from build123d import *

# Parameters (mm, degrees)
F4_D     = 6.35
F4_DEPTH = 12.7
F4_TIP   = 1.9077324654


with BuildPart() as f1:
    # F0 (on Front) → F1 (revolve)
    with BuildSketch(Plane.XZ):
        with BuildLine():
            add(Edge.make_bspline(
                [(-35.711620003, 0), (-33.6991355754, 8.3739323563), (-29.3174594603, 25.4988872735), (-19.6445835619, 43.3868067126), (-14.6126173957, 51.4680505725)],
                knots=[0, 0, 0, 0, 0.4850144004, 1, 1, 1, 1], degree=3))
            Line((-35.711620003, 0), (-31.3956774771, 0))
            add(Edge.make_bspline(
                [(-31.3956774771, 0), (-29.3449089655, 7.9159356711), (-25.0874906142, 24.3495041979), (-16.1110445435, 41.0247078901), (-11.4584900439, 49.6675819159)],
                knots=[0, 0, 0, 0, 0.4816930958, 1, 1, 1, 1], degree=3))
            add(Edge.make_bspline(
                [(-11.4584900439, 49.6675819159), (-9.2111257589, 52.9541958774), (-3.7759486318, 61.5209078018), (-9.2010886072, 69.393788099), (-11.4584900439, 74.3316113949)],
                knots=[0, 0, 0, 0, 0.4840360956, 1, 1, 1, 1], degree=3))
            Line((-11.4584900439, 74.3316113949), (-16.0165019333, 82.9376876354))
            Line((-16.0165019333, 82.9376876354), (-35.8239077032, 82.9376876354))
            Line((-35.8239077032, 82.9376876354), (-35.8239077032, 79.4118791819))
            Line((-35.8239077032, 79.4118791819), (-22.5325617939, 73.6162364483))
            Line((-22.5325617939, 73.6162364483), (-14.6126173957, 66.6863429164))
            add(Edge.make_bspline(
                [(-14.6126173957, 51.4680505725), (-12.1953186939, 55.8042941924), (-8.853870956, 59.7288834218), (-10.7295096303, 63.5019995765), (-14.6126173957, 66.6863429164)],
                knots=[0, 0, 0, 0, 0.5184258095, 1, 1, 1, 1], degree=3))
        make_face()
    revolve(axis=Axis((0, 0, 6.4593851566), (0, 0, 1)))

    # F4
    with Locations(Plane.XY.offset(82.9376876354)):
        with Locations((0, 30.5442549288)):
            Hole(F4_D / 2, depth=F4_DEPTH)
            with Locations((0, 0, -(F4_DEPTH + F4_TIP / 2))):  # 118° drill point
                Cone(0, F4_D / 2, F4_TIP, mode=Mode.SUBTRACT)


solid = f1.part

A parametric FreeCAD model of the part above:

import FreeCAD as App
import Part
import Sketcher

V = App.Vector
Q = App.Units.Quantity

doc = App.newDocument("Part")
params = doc.addObject("Spreadsheet::Sheet", "Params")
for row, (alias, value) in enumerate([
    ("revolution_angle", "360 deg"),
    ("sketch2_diameter", "0.25 in"),
    ("hole_diameter", "0.25 in"),
    ("hole_depth", "0.5 in"),
], start=1):
    params.set(f"A{row}", alias)
    params.set(f"B{row}", "=" + value)
    params.setAlias(f"B{row}", alias)

body = doc.addObject("PartDesign::Body", "Body")

sketch1 = body.newObject("Sketcher::SketchObject", "Sketch")
sketch1.AttachmentSupport = (doc.getObject("XZ_Plane"), [""])
sketch1.MapMode = "FlatFace"
sketch1.addGeometry([
    Part.BSplineCurve([V(-35.71162, 0, 0), V(-33.699136, 8.373932, 0), V(-29.317459, 25.498887, 0), V(-19.644584, 43.386807, 0), V(-14.612617, 51.468051, 0)], [4, 1, 4], [0, 0.4850144, 1], False, 3, [1, 1, 1, 1, 1], False),
    Part.LineSegment(V(-35.71162, 0, 0), V(-31.395677, 0, 0)),
    Part.BSplineCurve([V(-31.395677, 0, 0), V(-29.344909, 7.915936, 0), V(-25.087491, 24.349504, 0), V(-16.111045, 41.024708, 0), V(-11.45849, 49.667582, 0)], [4, 1, 4], [0, 0.481693096, 1], False, 3, [1, 1, 1, 1, 1], False),
    Part.BSplineCurve([V(-11.45849, 49.667582, 0), V(-9.211126, 52.954196, 0), V(-3.775949, 61.520908, 0), V(-9.201089, 69.393788, 0), V(-11.45849, 74.331611, 0)], [4, 1, 4], [0, 0.484036096, 1], False, 3, [1, 1, 1, 1, 1], False),
    Part.LineSegment(V(-11.45849, 74.331611, 0), V(-16.016502, 82.937688, 0)),
    Part.LineSegment(V(-16.016502, 82.937688, 0), V(-35.823908, 82.937688, 0)),
    Part.LineSegment(V(-35.823908, 82.937688, 0), V(-35.823908, 79.411879, 0)),
    Part.LineSegment(V(-35.823908, 79.411879, 0), V(-22.532562, 73.616236, 0)),
    Part.LineSegment(V(-22.532562, 73.616236, 0), V(-14.612617, 66.686343, 0)),
    Part.BSplineCurve([V(-14.612617, 51.468051, 0), V(-12.195319, 55.804294, 0), V(-8.853871, 59.728883, 0), V(-10.72951, 63.502, 0), V(-14.612617, 66.686343, 0)], [4, 1, 4], [0, 0.518425809, 1], False, 3, [1, 1, 1, 1, 1], False),
], False)
sketch1.addConstraint([
    Sketcher.Constraint("Block", 0),
    Sketcher.Constraint("Block", 2),
    Sketcher.Constraint("Block", 3),
    Sketcher.Constraint("Block", 9),
    Sketcher.Constraint("Coincident", 0, 1, 1, 1),
    Sketcher.Constraint("Coincident", 1, 2, 2, 1),
    Sketcher.Constraint("Coincident", 3, 2, 4, 1),
    Sketcher.Constraint("Coincident", 4, 2, 5, 1),
    Sketcher.Constraint("Coincident", 5, 2, 6, 1),
    Sketcher.Constraint("Coincident", 6, 2, 7, 1),
    Sketcher.Constraint("Coincident", 7, 2, 8, 1),
    Sketcher.Constraint("Coincident", 8, 2, 9, 2),
    Sketcher.Constraint("Horizontal", 5),
    Sketcher.Constraint("Vertical", 6),
    Sketcher.Constraint("DistanceY", 6, 2, 6, 1, Q("3.525808 mm")),
    Sketcher.Constraint("DistanceX", 4, 2, -1, 1, Q("16.016502 mm")),
    Sketcher.Constraint("DistanceX", 5, 2, 5, 1, Q("19.807406 mm")),
    Sketcher.Constraint("DistanceY", -1, 1, 6, 2, Q("79.411879 mm")),
    Sketcher.Constraint("DistanceX", 7, 2, -1, 1, Q("22.532562 mm")),
    Sketcher.Constraint("DistanceY", 7, 2, 4, 2, Q("9.321451 mm")),
])
revolution = body.newObject("PartDesign::Revolution", "Revolution")
revolution.Profile = sketch1
revolution.ReferenceAxis = (sketch1, ["V_Axis"])
revolution.setExpression("Angle", "Params.revolution_angle")

sketch2 = body.newObject("Sketcher::SketchObject", "Sketch001")
sketch2.AttachmentSupport = (doc.getObject("XY_Plane"), [""])
sketch2.MapMode = "FlatFace"
sketch2.AttachmentOffset = App.Placement(V(0, 0, 82.937688), App.Rotation())
sketch2.addGeometry(Part.Circle(V(0, 30.5, 0), V(0, 0, 1), 3.2), False)
sketch2.addConstraint([
    Sketcher.Constraint("PointOnObject", 0, 3, -2),
    Sketcher.Constraint("Diameter", 0, Q("0.25 in")),
    Sketcher.Constraint("DistanceY", -1, 1, 0, 3, Q("30.544255 mm")),
])
sketch2.setExpression("Constraints[1]", "Params.sketch2_diameter")
doc.recompute()
hole = body.newObject("PartDesign::Hole", "Hole")
hole.Profile = sketch2
hole.ThreadType = "None"
hole.setExpression("Diameter", "Params.hole_diameter")
hole.DepthType = "Dimension"
hole.setExpression("Depth", "Params.hole_depth")
hole.DrillPoint = "Angled"
hole.DrillPointAngle = 118

doc.recompute()
